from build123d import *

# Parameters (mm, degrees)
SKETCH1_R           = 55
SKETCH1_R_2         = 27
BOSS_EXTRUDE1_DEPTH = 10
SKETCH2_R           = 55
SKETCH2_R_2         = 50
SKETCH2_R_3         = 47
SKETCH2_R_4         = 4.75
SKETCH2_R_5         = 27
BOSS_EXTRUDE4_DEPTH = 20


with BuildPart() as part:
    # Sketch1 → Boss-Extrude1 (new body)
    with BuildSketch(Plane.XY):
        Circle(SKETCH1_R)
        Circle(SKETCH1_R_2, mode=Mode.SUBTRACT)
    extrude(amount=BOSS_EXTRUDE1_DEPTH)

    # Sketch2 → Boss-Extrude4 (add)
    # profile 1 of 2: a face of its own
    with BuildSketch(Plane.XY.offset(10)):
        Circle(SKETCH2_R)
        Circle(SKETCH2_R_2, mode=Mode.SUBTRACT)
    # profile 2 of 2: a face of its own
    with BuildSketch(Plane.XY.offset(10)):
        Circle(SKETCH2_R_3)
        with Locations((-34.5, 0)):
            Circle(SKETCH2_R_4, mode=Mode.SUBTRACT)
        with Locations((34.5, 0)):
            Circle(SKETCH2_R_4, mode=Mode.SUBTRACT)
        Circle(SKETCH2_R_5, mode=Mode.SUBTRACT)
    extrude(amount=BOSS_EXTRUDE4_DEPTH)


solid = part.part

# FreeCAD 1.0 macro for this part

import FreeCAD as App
import Part
import Sketcher
from FreeCAD import Vector
Q = App.Units.Quantity

doc = App.newDocument("Part")
body = doc.addObject("PartDesign::Body", "Body")

# Sketch on XY plane
sketch1 = doc.addObject("Sketcher::SketchObject", "Sketch")
body.addObject(sketch1)
sketch1.AttachmentSupport = (doc.XY_Plane, [""])
sketch1.MapMode = "FlatFace"
sketch1.addGeometry([
    Part.Circle(Vector(0, 0, 0), Vector(0, 0, 1), 55),
    Part.Circle(Vector(0, 0, 0), Vector(0, 0, 1), 27),
], False)
sketch1.addConstraint([
    Sketcher.Constraint("Coincident", 0, 3, -1, 1),
    Sketcher.Constraint("Coincident", 1, 3, -1, 1),
    Sketcher.Constraint("Diameter", 0, Q("110 mm")),
    Sketcher.Constraint("Diameter", 1, Q("54 mm")),
])
pad1 = doc.addObject("PartDesign::Pad", "Pad")
body.addObject(pad1)
pad1.Profile = sketch1
pad1.Length = 10

# Sketch on XY plane
sketch2 = doc.addObject("Sketcher::SketchObject", "Sketch001")
body.addObject(sketch2)
sketch2.AttachmentSupport = (doc.XY_Plane, [""])
sketch2.MapMode = "FlatFace"
sketch2.AttachmentOffset = App.Placement(Vector(0, 0, 10), App.Rotation())
sketch2.addGeometry([
    Part.Circle(Vector(0, 0, 0), Vector(0, 0, 1), 55),  # 0
    Part.Circle(Vector(0, 0, 0), Vector(0, 0, 1), 50),  # 1
    Part.Circle(Vector(0, 0, 0), Vector(0, 0, 1), 47),  # 2
    Part.Circle(Vector(-34.5, 0, 0), Vector(0, 0, 1), 4.8),  # 3
    Part.Circle(Vector(0, 0, 0), Vector(0, 0, 1), 27),  # 4
    Part.Circle(Vector(34.5, 0, 0), Vector(0, 0, 1), 4.8),  # 5
], False)
sketch2.addConstraint([
    Sketcher.Constraint("Coincident", 0, 3, -1, 1),
    Sketcher.Constraint("Coincident", 1, 3, -1, 1),
    Sketcher.Constraint("Coincident", 2, 3, -1, 1),
    Sketcher.Constraint("Coincident", 4, 3, -1, 1),
    Sketcher.Constraint("Equal", 3, 5),
    Sketcher.Constraint("Symmetric", 3, 3, 5, 3, -1, 1),
    Sketcher.Constraint("PointOnObject", 3, 3, -1),
    Sketcher.Constraint("Diameter", 0, Q("110 mm")),
    Sketcher.Constraint("Diameter", 1, Q("100 mm")),
    Sketcher.Constraint("Diameter", 2, Q("94 mm")),
    Sketcher.Constraint("Diameter", 4, Q("54 mm")),
    Sketcher.Constraint("Diameter", 3, Q("9.5 mm")),
    Sketcher.Constraint("DistanceX", 3, 3, 5, 3, Q("69 mm")),
])
pad2 = doc.addObject("PartDesign::Pad", "Pad001")
body.addObject(pad2)
pad2.Profile = sketch2
pad2.Length = 20

doc.recompute()
